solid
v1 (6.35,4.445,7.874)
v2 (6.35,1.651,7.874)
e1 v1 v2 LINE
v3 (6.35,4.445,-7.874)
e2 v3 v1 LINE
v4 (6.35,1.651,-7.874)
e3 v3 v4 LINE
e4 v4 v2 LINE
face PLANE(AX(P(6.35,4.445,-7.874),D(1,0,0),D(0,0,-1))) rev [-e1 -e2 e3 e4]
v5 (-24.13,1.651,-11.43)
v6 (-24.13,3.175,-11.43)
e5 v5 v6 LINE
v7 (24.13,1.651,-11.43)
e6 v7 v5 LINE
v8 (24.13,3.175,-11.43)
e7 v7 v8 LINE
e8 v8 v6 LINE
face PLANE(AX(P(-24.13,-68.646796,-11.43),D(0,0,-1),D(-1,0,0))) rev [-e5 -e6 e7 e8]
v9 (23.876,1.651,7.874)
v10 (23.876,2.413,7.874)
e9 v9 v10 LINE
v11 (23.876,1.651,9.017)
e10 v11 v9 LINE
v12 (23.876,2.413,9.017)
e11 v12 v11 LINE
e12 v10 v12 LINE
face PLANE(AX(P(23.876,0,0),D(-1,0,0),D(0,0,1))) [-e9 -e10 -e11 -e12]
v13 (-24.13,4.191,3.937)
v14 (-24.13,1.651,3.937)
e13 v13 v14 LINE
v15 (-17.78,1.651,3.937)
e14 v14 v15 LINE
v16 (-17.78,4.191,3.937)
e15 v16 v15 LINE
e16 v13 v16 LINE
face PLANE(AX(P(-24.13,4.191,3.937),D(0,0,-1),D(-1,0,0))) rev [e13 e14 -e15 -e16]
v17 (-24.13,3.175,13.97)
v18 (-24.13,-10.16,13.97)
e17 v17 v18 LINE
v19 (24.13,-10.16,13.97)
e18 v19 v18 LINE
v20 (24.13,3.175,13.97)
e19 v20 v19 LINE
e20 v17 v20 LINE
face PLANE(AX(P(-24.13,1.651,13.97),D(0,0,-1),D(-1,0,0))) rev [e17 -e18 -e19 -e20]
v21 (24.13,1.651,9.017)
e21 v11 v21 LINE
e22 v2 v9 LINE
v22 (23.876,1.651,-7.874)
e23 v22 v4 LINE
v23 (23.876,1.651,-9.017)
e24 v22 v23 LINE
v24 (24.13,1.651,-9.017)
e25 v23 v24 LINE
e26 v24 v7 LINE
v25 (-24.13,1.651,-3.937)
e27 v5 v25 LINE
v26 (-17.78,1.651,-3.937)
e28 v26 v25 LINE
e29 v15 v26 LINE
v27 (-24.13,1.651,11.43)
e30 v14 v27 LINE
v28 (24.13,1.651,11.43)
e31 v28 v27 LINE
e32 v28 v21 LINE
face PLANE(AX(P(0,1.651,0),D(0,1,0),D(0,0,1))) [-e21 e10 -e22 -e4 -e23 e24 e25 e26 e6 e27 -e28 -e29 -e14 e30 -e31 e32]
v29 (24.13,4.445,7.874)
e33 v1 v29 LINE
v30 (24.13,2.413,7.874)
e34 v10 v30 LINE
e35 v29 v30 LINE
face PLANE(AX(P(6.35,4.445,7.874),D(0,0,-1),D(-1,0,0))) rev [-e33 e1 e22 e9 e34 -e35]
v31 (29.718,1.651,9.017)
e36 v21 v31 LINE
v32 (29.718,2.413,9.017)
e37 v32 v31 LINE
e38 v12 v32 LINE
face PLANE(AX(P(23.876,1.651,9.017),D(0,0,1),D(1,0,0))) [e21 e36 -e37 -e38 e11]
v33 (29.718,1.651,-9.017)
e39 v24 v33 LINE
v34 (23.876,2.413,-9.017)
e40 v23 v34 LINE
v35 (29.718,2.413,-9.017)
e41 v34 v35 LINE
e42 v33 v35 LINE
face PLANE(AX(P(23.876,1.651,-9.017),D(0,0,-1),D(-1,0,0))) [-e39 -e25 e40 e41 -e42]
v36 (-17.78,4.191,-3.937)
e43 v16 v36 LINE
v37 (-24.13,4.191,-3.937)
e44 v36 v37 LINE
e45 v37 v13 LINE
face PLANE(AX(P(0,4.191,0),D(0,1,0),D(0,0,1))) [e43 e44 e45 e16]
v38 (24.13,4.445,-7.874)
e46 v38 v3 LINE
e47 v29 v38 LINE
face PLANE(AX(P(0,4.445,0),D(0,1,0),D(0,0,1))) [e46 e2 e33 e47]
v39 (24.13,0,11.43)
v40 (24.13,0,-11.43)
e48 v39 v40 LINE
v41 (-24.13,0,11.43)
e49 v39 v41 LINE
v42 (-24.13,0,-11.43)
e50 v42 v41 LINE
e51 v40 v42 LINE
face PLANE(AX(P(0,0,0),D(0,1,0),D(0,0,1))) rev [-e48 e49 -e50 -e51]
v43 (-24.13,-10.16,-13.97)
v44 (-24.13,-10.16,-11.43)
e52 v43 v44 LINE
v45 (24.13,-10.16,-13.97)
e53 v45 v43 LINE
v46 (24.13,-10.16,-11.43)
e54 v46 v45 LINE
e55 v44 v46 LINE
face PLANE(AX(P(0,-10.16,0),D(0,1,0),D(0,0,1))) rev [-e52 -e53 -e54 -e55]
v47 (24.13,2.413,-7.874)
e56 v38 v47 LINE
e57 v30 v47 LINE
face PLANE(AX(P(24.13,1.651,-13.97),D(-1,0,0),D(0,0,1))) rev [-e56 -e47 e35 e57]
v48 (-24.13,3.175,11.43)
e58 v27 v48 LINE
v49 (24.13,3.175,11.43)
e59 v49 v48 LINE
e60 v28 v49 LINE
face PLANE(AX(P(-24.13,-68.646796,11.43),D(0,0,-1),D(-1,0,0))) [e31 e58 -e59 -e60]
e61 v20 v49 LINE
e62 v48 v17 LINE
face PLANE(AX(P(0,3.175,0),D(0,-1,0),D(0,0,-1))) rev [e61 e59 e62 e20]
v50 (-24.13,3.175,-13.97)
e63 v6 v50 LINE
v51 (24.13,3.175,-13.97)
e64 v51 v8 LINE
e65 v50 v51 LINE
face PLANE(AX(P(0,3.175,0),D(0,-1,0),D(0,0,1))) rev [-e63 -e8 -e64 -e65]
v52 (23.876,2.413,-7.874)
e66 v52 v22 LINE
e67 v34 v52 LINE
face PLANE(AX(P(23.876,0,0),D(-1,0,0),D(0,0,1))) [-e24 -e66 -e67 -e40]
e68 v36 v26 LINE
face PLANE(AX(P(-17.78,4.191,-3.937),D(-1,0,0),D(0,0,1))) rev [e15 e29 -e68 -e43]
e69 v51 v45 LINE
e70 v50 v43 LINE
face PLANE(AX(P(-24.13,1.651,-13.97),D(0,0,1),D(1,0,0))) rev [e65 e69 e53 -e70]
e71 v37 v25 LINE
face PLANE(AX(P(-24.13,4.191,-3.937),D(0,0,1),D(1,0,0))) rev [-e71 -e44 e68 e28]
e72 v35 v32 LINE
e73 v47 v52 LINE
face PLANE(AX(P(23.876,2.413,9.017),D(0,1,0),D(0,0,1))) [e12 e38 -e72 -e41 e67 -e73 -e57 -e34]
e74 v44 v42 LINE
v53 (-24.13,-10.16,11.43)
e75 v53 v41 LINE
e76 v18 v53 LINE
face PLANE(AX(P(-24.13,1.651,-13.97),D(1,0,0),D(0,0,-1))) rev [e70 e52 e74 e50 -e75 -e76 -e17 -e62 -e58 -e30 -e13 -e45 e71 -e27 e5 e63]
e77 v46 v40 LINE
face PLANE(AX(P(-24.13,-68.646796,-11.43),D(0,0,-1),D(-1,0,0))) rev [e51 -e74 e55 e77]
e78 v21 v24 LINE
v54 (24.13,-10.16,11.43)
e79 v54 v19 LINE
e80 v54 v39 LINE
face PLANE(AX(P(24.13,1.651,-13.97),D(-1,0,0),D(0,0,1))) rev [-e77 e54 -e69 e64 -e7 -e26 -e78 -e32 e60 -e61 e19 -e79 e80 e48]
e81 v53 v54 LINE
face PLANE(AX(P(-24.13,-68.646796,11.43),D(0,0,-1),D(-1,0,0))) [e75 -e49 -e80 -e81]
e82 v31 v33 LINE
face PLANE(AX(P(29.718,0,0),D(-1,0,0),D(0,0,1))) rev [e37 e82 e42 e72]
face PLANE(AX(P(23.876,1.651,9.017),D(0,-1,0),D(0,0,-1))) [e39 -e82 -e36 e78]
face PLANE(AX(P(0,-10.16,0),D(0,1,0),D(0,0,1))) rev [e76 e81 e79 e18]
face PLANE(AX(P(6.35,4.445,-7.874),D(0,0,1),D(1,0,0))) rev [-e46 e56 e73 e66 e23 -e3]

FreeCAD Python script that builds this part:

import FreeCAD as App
import Part
import Sketcher
from FreeCAD import Vector
Q = App.Units.Quantity


def add_polygon(sketch, points):
    """Adds a closed chain of lines whose ends are joined by coincident constraints."""
    first, n = sketch.GeometryCount, len(points)
    for a, b in zip(points, points[1:] + points[:1]):
        sketch.addGeometry(Part.LineSegment(App.Vector(*a, 0), App.Vector(*b, 0)), False)
    for i in range(n):
        sketch.addConstraint(Sketcher.Constraint("Coincident", first + i, 2, first + (i + 1) % n, 1))

doc = App.newDocument("Part")
body = doc.addObject("PartDesign::Body", "Body")

# Sketch on XZ plane
sketch1 = body.newObject("Sketcher::SketchObject", "Sketch")
sketch1.AttachmentSupport = (doc.getObject("XZ_Plane"), [""])
sketch1.MapMode = "FlatFace"
add_polygon(sketch1, [(-24, -14), (-24, 14), (24, 14), (24, -14)])  # lines 0-3
sketch1.addConstraint([
    Sketcher.Constraint("Vertical", 0),
    Sketcher.Constraint("Horizontal", 1),
    Sketcher.Constraint("Vertical", 2),
    Sketcher.Constraint("Horizontal", 3),
    Sketcher.Constraint("Symmetric", 0, 2, 2, 2, -1, 1),
    Sketcher.Constraint("DistanceX", 1, 1, 1, 2, Q("1.9 in")),
    Sketcher.Constraint("DistanceY", 0, 1, 0, 2, Q("1.1 in")),
])
pad1 = body.newObject("PartDesign::Pad", "Pad")
pad1.Profile = sketch1
pad1.Length = Q("0.065 in")
pad1.Reversed = True

# Sketch on XZ plane
sketch2 = body.newObject("Sketcher::SketchObject", "Sketch001")
sketch2.AttachmentSupport = (doc.getObject("XZ_Plane"), [""])
sketch2.MapMode = "FlatFace"
sketch2.AttachmentOffset = App.Placement(Vector(0, 0, 0.4 * 25.4), App.Rotation())
add_polygon(sketch2, [(-24.1, 11.4), (-24.1, 14), (24.1, 14), (24.1, 11.4)])  # lines 0-3
sketch2.addConstraint([
    Sketcher.Constraint("Vertical", 0),
    Sketcher.Constraint("Horizontal", 1),
    Sketcher.Constraint("Vertical", 2),
    Sketcher.Constraint("Horizontal", 3),
    Sketcher.Constraint("DistanceX", 1, 1, 1, 2, Q("1.9 in")),
    Sketcher.Constraint("DistanceY", 0, 1, 0, 2, Q("0.1 in")),
    Sketcher.Constraint("DistanceX", 0, 2, -1, 1, Q("0.95 in")),
    Sketcher.Constraint("DistanceY", -1, 1, 0, 2, Q("0.55 in")),
])
pad2 = body.newObject("PartDesign::Pad", "Pad001")
pad2.Profile = sketch2
pad2.Length = Q("0.525 in")
pad2.Reversed = True
doc.recompute()

mirrored = body.newObject("PartDesign::Mirrored", "Mirrored")
mirrored.Originals = [pad2]
mirrored.MirrorPlane = (doc.getObject("XY_Plane"), [""])
body.Tip = mirrored

# Sketch on XZ plane
sketch3 = body.newObject("Sketcher::SketchObject", "Sketch002")
sketch3.AttachmentSupport = (doc.getObject("XZ_Plane"), [""])
sketch3.MapMode = "FlatFace"
sketch3.AttachmentOffset = App.Placement(Vector(0, 0, -0.065 * 25.4), App.Rotation())
add_polygon(sketch3, [(6, -8), (6, 8), (24, 8), (24, -8)])  # lines 0-3
sketch3.addConstraint([
    Sketcher.Constraint("Vertical", 0),
    Sketcher.Constraint("Horizontal", 1),
    Sketcher.Constraint("Vertical", 2),
    Sketcher.Constraint("Horizontal", 3),
    Sketcher.Constraint("DistanceX", 1, 1, 1, 2, Q("0.7 in")),
    Sketcher.Constraint("DistanceY", 0, 1, 0, 2, Q("0.62 in")),
    Sketcher.Constraint("DistanceX", -1, 1, 0, 2, Q("0.25 in")),
    Sketcher.Constraint("DistanceY", -1, 1, 0, 2, Q("0.31 in")),
])
pad3 = body.newObject("PartDesign::Pad", "Pad002")
pad3.Profile = sketch3
pad3.Length = Q("0.11 in")
pad3.Reversed = True

# Sketch on YZ plane
sketch4 = body.newObject("Sketcher::SketchObject", "Sketch003")
sketch4.AttachmentSupport = (doc.getObject("YZ_Plane"), [""])
sketch4.MapMode = "FlatFace"
sketch4.AttachmentOffset = App.Placement(Vector(0, 0, 0.95 * 25.4), App.Rotation())
add_polygon(sketch4, [(2.4, 9), (1.7, 9), (1.7, -9), (2.4, -9)])  # lines 0-3
sketch4.addConstraint([
    Sketcher.Constraint("Horizontal", 0),
    Sketcher.Constraint("Vertical", 1),
    Sketcher.Constraint("Horizontal", 2),
    Sketcher.Constraint("Vertical", 3),
    Sketcher.Constraint("DistanceX", 0, 2, 0, 1, Q("0.03 in")),
    Sketcher.Constraint("DistanceY", 1, 2, 1, 1, Q("0.71 in")),
    Sketcher.Constraint("DistanceX", -1, 1, 0, 2, Q("0.065 in")),
    Sketcher.Constraint("DistanceY", -1, 1, 0, 2, Q("0.355 in")),
])
pad4 = body.newObject("PartDesign::Pad", "Pad003")
pad4.Profile = sketch4
pad4.Type = "TwoLengths"
pad4.Length = Q("0.22 in")
pad4.Length2 = Q("0.01 in")

# Sketch on XZ plane
sketch5 = body.newObject("Sketcher::SketchObject", "Sketch004")
sketch5.AttachmentSupport = (doc.getObject("XZ_Plane"), [""])
sketch5.MapMode = "FlatFace"
sketch5.AttachmentOffset = App.Placement(Vector(0, 0, -0.065 * 25.4), App.Rotation())
add_polygon(sketch5, [(-24, -4), (-24, 4), (-18, 4), (-18, -4)])  # lines 0-3
sketch5.addConstraint([
    Sketcher.Constraint("Vertical", 0),
    Sketcher.Constraint("Horizontal", 1),
    Sketcher.Constraint("Vertical", 2),
    Sketcher.Constraint("Horizontal", 3),
    Sketcher.Constraint("DistanceX", 1, 1, 1, 2, Q("0.25 in")),
    Sketcher.Constraint("DistanceY", 0, 1, 0, 2, Q("0.31 in")),
    Sketcher.Constraint("DistanceX", 1, 2, -1, 1, Q("0.7 in")),
    Sketcher.Constraint("DistanceY", -1, 1, 0, 2, Q("0.155 in")),
])
pad5 = body.newObject("PartDesign::Pad", "Pad004")
pad5.Profile = sketch5
pad5.Length = Q("0.1 in")
pad5.Reversed = True

doc.recompute()
